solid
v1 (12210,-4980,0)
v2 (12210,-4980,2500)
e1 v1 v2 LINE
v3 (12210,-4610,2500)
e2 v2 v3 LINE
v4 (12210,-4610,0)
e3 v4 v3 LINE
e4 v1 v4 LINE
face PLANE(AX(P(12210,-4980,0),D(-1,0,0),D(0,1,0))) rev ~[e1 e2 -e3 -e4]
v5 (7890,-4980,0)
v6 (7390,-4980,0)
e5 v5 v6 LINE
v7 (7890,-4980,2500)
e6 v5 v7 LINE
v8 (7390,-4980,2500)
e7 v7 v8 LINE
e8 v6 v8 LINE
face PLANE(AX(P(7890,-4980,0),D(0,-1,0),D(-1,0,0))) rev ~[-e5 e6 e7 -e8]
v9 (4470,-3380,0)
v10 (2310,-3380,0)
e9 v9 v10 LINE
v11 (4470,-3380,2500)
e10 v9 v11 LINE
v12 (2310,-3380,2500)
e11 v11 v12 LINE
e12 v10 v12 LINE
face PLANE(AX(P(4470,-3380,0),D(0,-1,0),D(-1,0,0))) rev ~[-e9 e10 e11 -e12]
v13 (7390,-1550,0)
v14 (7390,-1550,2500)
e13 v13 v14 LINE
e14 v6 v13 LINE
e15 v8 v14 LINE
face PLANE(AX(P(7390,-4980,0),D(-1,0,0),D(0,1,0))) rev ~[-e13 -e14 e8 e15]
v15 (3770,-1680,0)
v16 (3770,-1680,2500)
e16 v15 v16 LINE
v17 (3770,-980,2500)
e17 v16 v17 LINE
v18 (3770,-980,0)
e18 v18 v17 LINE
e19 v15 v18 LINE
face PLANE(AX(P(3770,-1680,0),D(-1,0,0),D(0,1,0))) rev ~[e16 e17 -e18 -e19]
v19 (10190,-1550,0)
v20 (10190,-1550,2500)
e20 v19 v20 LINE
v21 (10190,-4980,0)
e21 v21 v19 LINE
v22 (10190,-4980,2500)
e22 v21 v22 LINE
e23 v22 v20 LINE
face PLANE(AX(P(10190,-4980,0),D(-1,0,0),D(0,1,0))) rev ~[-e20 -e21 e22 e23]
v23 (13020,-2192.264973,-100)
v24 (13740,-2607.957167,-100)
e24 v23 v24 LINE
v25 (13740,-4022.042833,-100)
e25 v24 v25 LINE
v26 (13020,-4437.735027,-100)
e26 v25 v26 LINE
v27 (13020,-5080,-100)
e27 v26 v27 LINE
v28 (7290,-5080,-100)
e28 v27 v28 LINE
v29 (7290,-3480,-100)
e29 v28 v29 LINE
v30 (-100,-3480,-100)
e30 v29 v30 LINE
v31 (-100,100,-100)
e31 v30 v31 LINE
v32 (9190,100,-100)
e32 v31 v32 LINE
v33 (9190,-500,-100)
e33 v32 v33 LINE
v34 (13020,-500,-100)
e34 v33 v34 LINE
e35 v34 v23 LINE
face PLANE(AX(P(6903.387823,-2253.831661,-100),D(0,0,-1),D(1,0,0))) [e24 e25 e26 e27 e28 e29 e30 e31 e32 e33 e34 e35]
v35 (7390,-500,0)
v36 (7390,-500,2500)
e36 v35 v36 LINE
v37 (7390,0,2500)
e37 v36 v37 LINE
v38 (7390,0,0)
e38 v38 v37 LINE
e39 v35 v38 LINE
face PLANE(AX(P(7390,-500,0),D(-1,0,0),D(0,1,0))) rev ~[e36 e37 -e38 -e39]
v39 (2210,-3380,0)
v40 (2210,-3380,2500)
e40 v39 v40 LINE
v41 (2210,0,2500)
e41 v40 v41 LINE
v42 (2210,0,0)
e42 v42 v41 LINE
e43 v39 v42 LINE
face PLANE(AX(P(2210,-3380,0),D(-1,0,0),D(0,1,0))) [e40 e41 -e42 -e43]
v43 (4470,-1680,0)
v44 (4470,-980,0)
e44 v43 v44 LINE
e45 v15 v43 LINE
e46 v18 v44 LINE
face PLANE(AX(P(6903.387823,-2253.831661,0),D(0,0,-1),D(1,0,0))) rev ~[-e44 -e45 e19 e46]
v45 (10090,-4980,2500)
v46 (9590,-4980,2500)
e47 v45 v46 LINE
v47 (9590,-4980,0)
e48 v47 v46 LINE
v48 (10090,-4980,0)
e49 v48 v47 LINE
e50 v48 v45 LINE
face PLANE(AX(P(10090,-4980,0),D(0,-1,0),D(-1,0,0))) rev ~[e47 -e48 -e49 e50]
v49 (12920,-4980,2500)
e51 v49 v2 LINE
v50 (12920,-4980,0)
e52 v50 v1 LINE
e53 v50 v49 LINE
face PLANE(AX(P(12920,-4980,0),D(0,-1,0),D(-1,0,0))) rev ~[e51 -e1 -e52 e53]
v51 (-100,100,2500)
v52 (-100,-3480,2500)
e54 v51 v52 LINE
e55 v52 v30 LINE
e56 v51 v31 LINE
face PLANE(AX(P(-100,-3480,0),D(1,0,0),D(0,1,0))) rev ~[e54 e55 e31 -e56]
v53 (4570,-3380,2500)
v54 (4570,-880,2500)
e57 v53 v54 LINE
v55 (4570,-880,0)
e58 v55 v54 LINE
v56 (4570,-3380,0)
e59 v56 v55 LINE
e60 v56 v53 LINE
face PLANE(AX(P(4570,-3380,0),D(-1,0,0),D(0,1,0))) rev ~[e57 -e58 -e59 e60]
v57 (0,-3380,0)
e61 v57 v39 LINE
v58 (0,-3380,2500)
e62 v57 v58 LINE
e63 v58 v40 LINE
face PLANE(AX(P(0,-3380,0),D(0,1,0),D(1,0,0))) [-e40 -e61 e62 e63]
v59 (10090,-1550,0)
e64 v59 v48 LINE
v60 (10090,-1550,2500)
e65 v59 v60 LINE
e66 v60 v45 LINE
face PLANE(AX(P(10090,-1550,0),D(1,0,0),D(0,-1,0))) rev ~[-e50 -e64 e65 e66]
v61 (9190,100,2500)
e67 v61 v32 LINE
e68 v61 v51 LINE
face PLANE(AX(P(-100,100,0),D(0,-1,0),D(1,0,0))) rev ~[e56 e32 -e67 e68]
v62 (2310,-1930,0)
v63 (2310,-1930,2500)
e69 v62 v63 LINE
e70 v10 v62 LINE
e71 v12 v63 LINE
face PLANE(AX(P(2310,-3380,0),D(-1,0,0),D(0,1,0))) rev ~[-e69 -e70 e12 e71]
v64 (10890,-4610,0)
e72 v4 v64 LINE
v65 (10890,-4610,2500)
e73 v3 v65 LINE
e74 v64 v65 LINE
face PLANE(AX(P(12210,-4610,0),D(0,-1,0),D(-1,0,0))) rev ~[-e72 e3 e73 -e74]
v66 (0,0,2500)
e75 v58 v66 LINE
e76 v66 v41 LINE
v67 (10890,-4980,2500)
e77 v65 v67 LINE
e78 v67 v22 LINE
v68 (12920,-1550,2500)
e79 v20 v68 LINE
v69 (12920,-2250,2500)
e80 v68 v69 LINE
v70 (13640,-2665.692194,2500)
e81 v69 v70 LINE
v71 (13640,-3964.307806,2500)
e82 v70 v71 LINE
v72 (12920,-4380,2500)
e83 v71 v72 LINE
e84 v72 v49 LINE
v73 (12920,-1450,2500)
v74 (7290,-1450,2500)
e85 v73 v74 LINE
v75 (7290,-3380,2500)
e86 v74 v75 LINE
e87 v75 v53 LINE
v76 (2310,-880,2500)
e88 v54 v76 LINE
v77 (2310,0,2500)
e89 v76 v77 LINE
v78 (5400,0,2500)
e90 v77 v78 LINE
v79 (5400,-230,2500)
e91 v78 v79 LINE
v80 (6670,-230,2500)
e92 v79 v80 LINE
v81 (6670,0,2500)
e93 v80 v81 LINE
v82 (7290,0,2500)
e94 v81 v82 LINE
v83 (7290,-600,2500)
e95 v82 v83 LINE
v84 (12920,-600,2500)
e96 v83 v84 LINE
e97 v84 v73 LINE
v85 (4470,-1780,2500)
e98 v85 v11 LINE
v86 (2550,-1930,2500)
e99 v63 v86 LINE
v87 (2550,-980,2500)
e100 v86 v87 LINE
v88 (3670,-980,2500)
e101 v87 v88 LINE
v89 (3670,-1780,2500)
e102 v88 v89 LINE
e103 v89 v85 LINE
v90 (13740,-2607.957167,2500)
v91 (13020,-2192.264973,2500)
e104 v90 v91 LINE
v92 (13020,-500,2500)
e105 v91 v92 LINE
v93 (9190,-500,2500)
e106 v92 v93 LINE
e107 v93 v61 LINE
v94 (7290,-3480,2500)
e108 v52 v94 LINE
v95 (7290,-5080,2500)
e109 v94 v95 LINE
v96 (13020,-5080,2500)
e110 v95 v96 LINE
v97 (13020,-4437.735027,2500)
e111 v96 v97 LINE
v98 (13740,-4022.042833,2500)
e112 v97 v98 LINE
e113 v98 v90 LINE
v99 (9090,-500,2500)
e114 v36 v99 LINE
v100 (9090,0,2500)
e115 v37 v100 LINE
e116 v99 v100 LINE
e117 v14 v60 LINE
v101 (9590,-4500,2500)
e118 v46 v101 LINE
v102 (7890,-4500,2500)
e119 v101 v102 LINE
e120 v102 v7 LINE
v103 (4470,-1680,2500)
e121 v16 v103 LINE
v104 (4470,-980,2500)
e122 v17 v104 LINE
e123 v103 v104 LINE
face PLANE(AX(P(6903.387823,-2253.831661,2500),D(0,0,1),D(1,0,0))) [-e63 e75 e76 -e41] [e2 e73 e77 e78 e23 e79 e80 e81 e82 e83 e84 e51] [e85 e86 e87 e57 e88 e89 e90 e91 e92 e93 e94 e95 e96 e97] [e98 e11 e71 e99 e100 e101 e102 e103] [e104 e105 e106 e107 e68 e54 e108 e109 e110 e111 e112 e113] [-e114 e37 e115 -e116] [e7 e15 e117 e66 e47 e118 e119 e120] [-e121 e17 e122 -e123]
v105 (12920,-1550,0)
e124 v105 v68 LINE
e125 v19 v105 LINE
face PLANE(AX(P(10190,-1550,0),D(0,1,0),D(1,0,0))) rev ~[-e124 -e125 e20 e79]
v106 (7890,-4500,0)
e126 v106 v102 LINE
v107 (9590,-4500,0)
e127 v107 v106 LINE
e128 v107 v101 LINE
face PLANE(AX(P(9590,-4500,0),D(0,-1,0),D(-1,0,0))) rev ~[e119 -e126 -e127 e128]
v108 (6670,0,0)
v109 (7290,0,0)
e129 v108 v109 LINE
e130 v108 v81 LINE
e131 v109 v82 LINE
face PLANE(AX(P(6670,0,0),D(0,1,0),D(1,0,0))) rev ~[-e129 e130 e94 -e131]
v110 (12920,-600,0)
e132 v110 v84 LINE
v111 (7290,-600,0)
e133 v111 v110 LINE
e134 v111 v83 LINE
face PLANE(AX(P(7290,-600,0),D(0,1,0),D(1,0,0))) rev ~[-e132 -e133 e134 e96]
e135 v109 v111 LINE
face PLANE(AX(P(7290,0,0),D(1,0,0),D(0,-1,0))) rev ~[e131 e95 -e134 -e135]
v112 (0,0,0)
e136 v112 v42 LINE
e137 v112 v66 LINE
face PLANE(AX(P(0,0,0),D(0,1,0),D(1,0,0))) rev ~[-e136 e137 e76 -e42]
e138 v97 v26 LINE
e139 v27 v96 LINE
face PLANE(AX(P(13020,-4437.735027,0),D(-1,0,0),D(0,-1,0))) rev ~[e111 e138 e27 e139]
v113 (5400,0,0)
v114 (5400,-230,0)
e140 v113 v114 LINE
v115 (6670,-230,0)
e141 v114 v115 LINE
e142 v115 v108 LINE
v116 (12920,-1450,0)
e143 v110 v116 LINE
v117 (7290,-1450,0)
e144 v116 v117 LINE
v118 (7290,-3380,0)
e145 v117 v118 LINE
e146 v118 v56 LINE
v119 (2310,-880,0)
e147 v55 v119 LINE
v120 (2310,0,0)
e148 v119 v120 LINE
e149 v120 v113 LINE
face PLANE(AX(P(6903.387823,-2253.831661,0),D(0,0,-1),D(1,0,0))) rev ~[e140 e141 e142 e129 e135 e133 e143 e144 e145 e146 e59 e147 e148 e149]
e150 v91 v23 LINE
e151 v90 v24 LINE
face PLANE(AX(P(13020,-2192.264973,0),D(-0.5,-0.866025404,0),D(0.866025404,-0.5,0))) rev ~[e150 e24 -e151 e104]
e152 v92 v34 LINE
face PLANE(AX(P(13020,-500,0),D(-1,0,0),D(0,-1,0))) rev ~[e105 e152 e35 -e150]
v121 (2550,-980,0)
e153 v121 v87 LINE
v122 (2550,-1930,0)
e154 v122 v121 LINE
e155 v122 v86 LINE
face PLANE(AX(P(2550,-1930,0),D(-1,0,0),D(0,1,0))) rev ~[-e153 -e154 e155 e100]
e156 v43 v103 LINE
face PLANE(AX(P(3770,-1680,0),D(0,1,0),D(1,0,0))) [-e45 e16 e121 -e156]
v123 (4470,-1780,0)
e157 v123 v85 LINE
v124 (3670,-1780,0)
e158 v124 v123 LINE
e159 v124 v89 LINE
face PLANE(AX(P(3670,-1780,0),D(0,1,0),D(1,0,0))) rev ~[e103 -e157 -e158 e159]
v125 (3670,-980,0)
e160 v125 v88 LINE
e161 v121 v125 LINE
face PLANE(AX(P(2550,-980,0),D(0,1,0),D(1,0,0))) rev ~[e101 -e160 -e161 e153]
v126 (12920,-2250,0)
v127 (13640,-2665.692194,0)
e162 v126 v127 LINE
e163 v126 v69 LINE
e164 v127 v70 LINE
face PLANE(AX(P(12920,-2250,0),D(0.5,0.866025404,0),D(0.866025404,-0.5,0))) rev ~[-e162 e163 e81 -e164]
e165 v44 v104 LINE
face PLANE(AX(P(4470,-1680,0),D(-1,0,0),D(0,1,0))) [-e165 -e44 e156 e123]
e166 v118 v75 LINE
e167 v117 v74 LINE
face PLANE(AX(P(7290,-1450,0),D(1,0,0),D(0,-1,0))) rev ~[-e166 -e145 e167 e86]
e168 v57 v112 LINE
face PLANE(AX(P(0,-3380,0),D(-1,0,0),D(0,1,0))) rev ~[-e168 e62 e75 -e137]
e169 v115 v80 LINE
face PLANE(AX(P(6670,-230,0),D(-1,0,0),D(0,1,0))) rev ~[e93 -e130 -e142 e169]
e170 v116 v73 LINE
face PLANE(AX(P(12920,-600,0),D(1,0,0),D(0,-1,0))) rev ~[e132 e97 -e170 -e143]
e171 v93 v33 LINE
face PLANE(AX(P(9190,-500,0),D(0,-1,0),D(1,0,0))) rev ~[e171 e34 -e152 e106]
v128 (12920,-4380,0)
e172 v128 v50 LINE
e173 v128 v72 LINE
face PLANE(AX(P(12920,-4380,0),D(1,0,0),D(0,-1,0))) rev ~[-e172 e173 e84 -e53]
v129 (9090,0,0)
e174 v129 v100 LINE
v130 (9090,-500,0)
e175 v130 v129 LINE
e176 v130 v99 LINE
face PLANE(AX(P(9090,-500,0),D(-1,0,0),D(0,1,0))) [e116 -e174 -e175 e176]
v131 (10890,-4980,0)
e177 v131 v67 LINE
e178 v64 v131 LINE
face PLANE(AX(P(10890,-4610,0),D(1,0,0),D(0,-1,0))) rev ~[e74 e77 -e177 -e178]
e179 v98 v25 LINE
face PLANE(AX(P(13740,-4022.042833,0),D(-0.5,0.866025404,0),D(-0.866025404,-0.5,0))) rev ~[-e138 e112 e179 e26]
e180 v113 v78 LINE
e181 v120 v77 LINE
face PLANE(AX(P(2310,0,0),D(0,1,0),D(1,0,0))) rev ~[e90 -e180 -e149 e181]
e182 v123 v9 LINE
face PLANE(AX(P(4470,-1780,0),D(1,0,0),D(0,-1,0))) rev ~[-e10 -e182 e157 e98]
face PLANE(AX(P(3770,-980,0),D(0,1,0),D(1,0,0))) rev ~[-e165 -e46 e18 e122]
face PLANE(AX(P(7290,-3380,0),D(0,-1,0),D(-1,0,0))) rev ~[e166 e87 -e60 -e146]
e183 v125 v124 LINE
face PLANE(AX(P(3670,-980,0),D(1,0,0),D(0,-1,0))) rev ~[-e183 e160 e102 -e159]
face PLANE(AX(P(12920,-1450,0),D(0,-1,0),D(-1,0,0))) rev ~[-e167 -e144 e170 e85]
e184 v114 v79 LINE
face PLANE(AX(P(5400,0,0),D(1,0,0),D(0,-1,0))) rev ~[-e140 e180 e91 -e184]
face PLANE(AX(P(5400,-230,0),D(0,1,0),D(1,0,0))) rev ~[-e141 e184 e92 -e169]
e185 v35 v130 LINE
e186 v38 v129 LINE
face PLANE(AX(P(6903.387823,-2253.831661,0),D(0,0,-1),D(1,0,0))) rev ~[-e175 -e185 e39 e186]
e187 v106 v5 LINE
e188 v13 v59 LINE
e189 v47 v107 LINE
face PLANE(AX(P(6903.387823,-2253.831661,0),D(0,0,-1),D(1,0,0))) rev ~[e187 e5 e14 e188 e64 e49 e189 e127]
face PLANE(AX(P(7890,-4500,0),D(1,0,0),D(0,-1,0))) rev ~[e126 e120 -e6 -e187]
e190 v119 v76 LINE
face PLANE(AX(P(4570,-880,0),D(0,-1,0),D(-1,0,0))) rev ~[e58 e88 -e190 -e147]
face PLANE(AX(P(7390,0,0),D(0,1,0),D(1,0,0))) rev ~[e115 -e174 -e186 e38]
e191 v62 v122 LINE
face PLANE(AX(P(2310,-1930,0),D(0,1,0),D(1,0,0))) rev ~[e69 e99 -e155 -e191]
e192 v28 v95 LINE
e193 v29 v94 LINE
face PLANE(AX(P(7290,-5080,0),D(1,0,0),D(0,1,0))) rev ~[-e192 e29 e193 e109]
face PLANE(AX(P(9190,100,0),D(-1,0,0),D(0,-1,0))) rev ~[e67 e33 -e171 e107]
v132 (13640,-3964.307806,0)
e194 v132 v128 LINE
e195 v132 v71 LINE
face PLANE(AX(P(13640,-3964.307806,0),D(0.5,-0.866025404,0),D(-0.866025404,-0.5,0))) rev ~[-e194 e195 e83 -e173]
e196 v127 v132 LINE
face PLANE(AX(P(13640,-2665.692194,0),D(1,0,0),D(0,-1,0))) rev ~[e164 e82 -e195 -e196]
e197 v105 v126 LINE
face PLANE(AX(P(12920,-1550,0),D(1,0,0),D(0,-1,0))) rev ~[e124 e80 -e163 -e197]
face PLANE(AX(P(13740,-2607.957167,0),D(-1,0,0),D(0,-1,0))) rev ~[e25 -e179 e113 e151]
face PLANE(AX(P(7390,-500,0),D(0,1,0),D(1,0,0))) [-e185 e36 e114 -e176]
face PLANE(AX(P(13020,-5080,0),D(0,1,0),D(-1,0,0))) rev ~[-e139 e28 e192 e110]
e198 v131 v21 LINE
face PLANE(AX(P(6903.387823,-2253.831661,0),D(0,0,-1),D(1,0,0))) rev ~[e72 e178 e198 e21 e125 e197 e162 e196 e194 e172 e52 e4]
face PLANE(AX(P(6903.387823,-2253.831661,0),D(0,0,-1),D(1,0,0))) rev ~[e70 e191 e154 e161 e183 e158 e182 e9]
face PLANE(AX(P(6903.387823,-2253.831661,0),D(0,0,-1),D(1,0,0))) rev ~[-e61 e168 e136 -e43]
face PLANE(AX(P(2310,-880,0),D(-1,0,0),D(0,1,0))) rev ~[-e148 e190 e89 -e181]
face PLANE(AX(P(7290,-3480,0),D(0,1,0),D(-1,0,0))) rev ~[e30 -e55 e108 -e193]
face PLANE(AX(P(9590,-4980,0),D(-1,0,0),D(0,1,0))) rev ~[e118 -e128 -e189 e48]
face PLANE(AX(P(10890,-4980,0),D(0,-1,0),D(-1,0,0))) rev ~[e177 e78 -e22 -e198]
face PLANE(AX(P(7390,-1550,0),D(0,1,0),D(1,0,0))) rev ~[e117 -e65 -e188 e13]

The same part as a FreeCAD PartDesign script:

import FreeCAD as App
import Part
import Sketcher

V = App.Vector
Q = App.Units.Quantity


def add_polygon(sketch, points):
    """Adds a closed chain of lines whose ends are joined by coincident constraints."""
    first, n = sketch.GeometryCount, len(points)
    for a, b in zip(points, points[1:] + points[:1]):
        sketch.addGeometry(Part.LineSegment(App.Vector(*a, 0), App.Vector(*b, 0)), False)
    for i in range(n):
        sketch.addConstraint(Sketcher.Constraint("Coincident", first + i, 2, first + (i + 1) % n, 1))

doc = App.newDocument("Part")
body = doc.addObject("PartDesign::Body", "Body")

# Sketch on XY plane
sketch1 = body.newObject("Sketcher::SketchObject", "Sketch")
sketch1.AttachmentSupport = (doc.getObject("XY_Plane"), [""])
sketch1.MapMode = "FlatFace"
add_polygon(sketch1, [(-100, 100), (-100, -3480), (7290, -3480), (7290, -5080), (13020, -5080), (13020, -4437.735027), (13740, -4022.042833), (13740, -2607.957167), (13020, -2192.264973), (13020, -500), (9190, -500), (9190, 100)])  # lines 0-11
add_polygon(sketch1, [(7890, -4980), (7390, -4980), (7390, -1550), (10090, -1550), (10090, -4980), (9590, -4980), (9590, -4500), (7890, -4500)])  # lines 12-19
add_polygon(sketch1, [(10890, -4980), (10190, -4980), (10190, -1550), (12920, -1550), (12920, -2250), (13640, -2665.692194), (13640, -3964.307806), (12920, -4380), (12920, -4980), (12210, -4980), (12210, -4610), (10890, -4610)])  # lines 20-31
add_polygon(sketch1, [(4470, -1780), (4470, -3380), (2310, -3380), (2310, -1930), (2550, -1930), (2550, -980), (3670, -980), (3670, -1780)])  # lines 32-39
add_polygon(sketch1, [(2210, -3380), (0, -3380), (0, 0), (2210, 0)])  # lines 40-43
add_polygon(sketch1, [(4470, -1680), (3770, -1680), (3770, -980), (4470, -980)])  # lines 44-47
add_polygon(sketch1, [(6670, 0), (7290, 0), (7290, -600), (12920, -600), (12920, -1450), (7290, -1450), (7290, -3380), (4570, -3380), (4570, -880), (2310, -880), (2310, 0), (5400, 0), (5400, -230), (6670, -230)])  # lines 48-61
add_polygon(sketch1, [(9090, -500), (7390, -500), (7390, 0), (9090, 0)])  # lines 62-65
sketch1.addConstraint([
    Sketcher.Constraint("Vertical", 0),
    Sketcher.Constraint("Horizontal", 1),
    Sketcher.Constraint("Vertical", 2),
    Sketcher.Constraint("Horizontal", 3),
    Sketcher.Constraint("Vertical", 4),
    Sketcher.Constraint("Vertical", 6),
    Sketcher.Constraint("Vertical", 8),
    Sketcher.Constraint("Horizontal", 9),
    Sketcher.Constraint("Vertical", 10),
    Sketcher.Constraint("Horizontal", 11),
    Sketcher.Constraint("Horizontal", 12),
    Sketcher.Constraint("Vertical", 13),
    Sketcher.Constraint("Horizontal", 14),
    Sketcher.Constraint("Vertical", 15),
    Sketcher.Constraint("Horizontal", 16),
    Sketcher.Constraint("Vertical", 17),
    Sketcher.Constraint("Horizontal", 18),
    Sketcher.Constraint("Vertical", 19),
    Sketcher.Constraint("Horizontal", 20),
    Sketcher.Constraint("Vertical", 21),
    Sketcher.Constraint("Horizontal", 22),
    Sketcher.Constraint("Vertical", 23),
    Sketcher.Constraint("Vertical", 25),
    Sketcher.Constraint("Vertical", 27),
    Sketcher.Constraint("Horizontal", 28),
    Sketcher.Constraint("Vertical", 29),
    Sketcher.Constraint("Horizontal", 30),
    Sketcher.Constraint("Vertical", 31),
    Sketcher.Constraint("Vertical", 32),
    Sketcher.Constraint("Horizontal", 33),
    Sketcher.Constraint("Vertical", 34),
    Sketcher.Constraint("Horizontal", 35),
    Sketcher.Constraint("Vertical", 36),
    Sketcher.Constraint("Horizontal", 37),
    Sketcher.Constraint("Vertical", 38),
    Sketcher.Constraint("Horizontal", 39),
    Sketcher.Constraint("Horizontal", 40),
    Sketcher.Constraint("Vertical", 41),
    Sketcher.Constraint("Horizontal", 42),
    Sketcher.Constraint("Vertical", 43),
    Sketcher.Constraint("Horizontal", 44),
    Sketcher.Constraint("Vertical", 45),
    Sketcher.Constraint("Horizontal", 46),
    Sketcher.Constraint("Vertical", 47),
    Sketcher.Constraint("Horizontal", 48),
    Sketcher.Constraint("Vertical", 49),
    Sketcher.Constraint("Horizontal", 50),
    Sketcher.Constraint("Vertical", 51),
    Sketcher.Constraint("Horizontal", 52),
    Sketcher.Constraint("Vertical", 53),
    Sketcher.Constraint("Horizontal", 54),
    Sketcher.Constraint("Vertical", 55),
    Sketcher.Constraint("Horizontal", 56),
    Sketcher.Constraint("Vertical", 57),
    Sketcher.Constraint("Horizontal", 58),
    Sketcher.Constraint("Vertical", 59),
    Sketcher.Constraint("Horizontal", 60),
    Sketcher.Constraint("Vertical", 61),
    Sketcher.Constraint("Horizontal", 62),
    Sketcher.Constraint("Vertical", 63),
    Sketcher.Constraint("Horizontal", 64),
    Sketcher.Constraint("Vertical", 65),
    Sketcher.Constraint("Coincident", 41, 2, -1, 1),
    Sketcher.Constraint("PointOnObject", 48, 2, -1),
    Sketcher.Constraint("PointOnObject", 57, 2, -1),
    Sketcher.Constraint("PointOnObject", 63, 2, -1),
    Sketcher.Constraint("Parallel", 7, 24),
    Sketcher.Constraint("Parallel", 5, 26),
    Sketcher.Constraint("Horizontal", 12, 2, 15, 2),
    Sketcher.Constraint("Horizontal", 19, 2, 20, 2),
    Sketcher.Constraint("Horizontal", 14, 2, 21, 2),
    Sketcher.Constraint("Horizontal", 20, 2, 27, 2),
    Sketcher.Constraint("Horizontal", 33, 2, 40, 2),
    Sketcher.Constraint("Horizontal", 37, 2, 45, 2),
    Sketcher.Constraint("Horizontal", 43, 2, 53, 2),
    Sketcher.Constraint("Horizontal", 9, 2, 62, 2),
    Sketcher.Constraint("Vertical", 4, 2, 7, 2),
    Sketcher.Constraint("Vertical", 23, 2, 26, 2),
    Sketcher.Constraint("Vertical", 39, 2, 46, 2),
    Sketcher.Constraint("Vertical", 2, 2, 48, 2),
    Sketcher.Constraint("Vertical", 27, 2, 50, 2),
    Sketcher.Constraint("Vertical", 49, 2, 52, 2),
    Sketcher.Constraint("Vertical", 34, 2, 56, 2),
    Sketcher.Constraint("Vertical", 13, 2, 62, 2),
    Sketcher.Constraint("Equal", 12, 16),
    Sketcher.Constraint("Equal", 20, 44),
    Sketcher.Constraint("Equal", 18, 62),
    Sketcher.Constraint("Equal", 46, 23),
    Sketcher.Constraint("Equal", 10, 27),
    Sketcher.Constraint("Equal", 2, 32),
    Sketcher.Constraint("Equal", 39, 38),
    Sketcher.Constraint("Equal", 23, 45),
    Sketcher.Constraint("Equal", 27, 49),
    Sketcher.Constraint("Equal", 16, 63),
    Sketcher.Constraint("Equal", 5, 7),
    Sketcher.Constraint("Equal", 7, 24),
    Sketcher.Constraint("DistanceX", 1, 1, 1, 2, 7390.0),
    Sketcher.Constraint("DistanceX", 3, 1, 3, 2, 5730.0),
    Sketcher.Constraint("DistanceX", 9, 2, 9, 1, 3830.0),
    Sketcher.Constraint("DistanceX", 12, 2, 12, 1, 500.0),
    Sketcher.Constraint("DistanceX", 14, 1, 14, 2, 2700.0),
    Sketcher.Constraint("DistanceX", 20, 2, 20, 1, 700.0),
    Sketcher.Constraint("DistanceX", 22, 1, 22, 2, 2730.0),
    Sketcher.Constraint("DistanceX", 28, 2, 28, 1, 710.0),
    Sketcher.Constraint("DistanceX", 33, 2, 33, 1, 2160.0),
    Sketcher.Constraint("DistanceX", 35, 1, 35, 2, 240.0),
    Sketcher.Constraint("DistanceX", 37, 1, 37, 2, 1120.0),
    Sketcher.Constraint("DistanceX", 40, 2, 40, 1, 2210.0),
    Sketcher.Constraint("DistanceX", 48, 1, 48, 2, 620.0),
    Sketcher.Constraint("DistanceX", 50, 1, 50, 2, 5630.0),
    Sketcher.Constraint("DistanceX", 54, 2, 54, 1, 2720.0),
    Sketcher.Constraint("DistanceX", 56, 2, 56, 1, 2260.0),
    Sketcher.Constraint("DistanceX", 58, 1, 58, 2, 3090.0),
    Sketcher.Constraint("DistanceY", 0, 2, 0, 1, 3580.0),
    Sketcher.Constraint("DistanceY", 2, 2, 2, 1, 1600.0),
    Sketcher.Constraint("DistanceY", 10, 1, 10, 2, 600.0),
    Sketcher.Constraint("DistanceY", 13, 1, 13, 2, 3430.0),
    Sketcher.Constraint("DistanceY", 17, 1, 17, 2, 480.0),
    Sketcher.Constraint("DistanceY", 29, 1, 29, 2, 370.0),
    Sketcher.Constraint("DistanceY", 34, 1, 34, 2, 1450.0),
    Sketcher.Constraint("DistanceY", 41, 1, 41, 2, 3380.0),
    Sketcher.Constraint("DistanceY", 51, 2, 51, 1, 850.0),
    Sketcher.Constraint("DistanceY", 55, 1, 55, 2, 2500.0),
    Sketcher.Constraint("DistanceY", 59, 2, 59, 1, 230.0),
    Sketcher.Constraint("Angle", 5, Q("30 deg")),
    Sketcher.Constraint("DistanceX", 0, 2, -1, 1, 100.0),
    Sketcher.Constraint("DistanceX", -1, 1, 5, 2, 13740.0),
    Sketcher.Constraint("DistanceX", -1, 1, 12, 2, 7390.0),
    Sketcher.Constraint("DistanceY", 12, 2, -1, 1, 4980.0),
    Sketcher.Constraint("DistanceY", 4, 1, 4, 2, 642.264973),
    Sketcher.Constraint("DistanceY", 6, 1, 6, 2, 1414.085666),
])
pad1 = body.newObject("PartDesign::Pad", "Pad")
pad1.Profile = sketch1
pad1.Length = 2500

# Sketch on XY plane
sketch2 = body.newObject("Sketcher::SketchObject", "Sketch001")
sketch2.AttachmentSupport = (doc.getObject("XY_Plane"), [""])
sketch2.MapMode = "FlatFace"
add_polygon(sketch2, [(7290, -3480), (-100, -3480), (-100, 100), (9190, 100), (9190, -500), (13020, -500), (13020, -2192.264973), (13740, -2607.957167), (13740, -4022.042833), (13020, -4437.735027), (13020, -5080), (7290, -5080)])  # lines 0-11
sketch2.addConstraint([
    Sketcher.Constraint("Horizontal", 0),
    Sketcher.Constraint("Vertical", 1),
    Sketcher.Constraint("Horizontal", 2),
    Sketcher.Constraint("Vertical", 3),
    Sketcher.Constraint("Horizontal", 4),
    Sketcher.Constraint("Vertical", 5),
    Sketcher.Constraint("Vertical", 7),
    Sketcher.Constraint("Vertical", 9),
    Sketcher.Constraint("Horizontal", 10),
    Sketcher.Constraint("Vertical", 11),
    Sketcher.Constraint("Vertical", 5, 2, 8, 2),
    Sketcher.Constraint("Equal", 6, 8),
    Sketcher.Constraint("DistanceX", 0, 2, 0, 1, 7390.0),
    Sketcher.Constraint("DistanceX", 2, 1, 2, 2, 9290.0),
    Sketcher.Constraint("DistanceX", 4, 1, 4, 2, 3830.0),
    Sketcher.Constraint("DistanceY", 1, 1, 1, 2, 3580.0),
    Sketcher.Constraint("DistanceY", 3, 2, 3, 1, 600.0),
    Sketcher.Constraint("DistanceY", 11, 1, 11, 2, 1600.0),
    Sketcher.Constraint("Angle", 6, Q("-30 deg")),
    Sketcher.Constraint("DistanceX", 0, 2, -1, 1, 100.0),
    Sketcher.Constraint("DistanceY", 0, 2, -1, 1, 3480.0),
    Sketcher.Constraint("DistanceX", -1, 1, 6, 2, 13740.0),
    Sketcher.Constraint("DistanceY", 5, 2, 5, 1, 1692.264973),
    Sketcher.Constraint("DistanceY", 7, 2, 7, 1, 1414.085666),
])
pad2 = body.newObject("PartDesign::Pad", "Pad001")
pad2.Profile = sketch2
pad2.Length = 100
pad2.Reversed = True

doc.recompute()
